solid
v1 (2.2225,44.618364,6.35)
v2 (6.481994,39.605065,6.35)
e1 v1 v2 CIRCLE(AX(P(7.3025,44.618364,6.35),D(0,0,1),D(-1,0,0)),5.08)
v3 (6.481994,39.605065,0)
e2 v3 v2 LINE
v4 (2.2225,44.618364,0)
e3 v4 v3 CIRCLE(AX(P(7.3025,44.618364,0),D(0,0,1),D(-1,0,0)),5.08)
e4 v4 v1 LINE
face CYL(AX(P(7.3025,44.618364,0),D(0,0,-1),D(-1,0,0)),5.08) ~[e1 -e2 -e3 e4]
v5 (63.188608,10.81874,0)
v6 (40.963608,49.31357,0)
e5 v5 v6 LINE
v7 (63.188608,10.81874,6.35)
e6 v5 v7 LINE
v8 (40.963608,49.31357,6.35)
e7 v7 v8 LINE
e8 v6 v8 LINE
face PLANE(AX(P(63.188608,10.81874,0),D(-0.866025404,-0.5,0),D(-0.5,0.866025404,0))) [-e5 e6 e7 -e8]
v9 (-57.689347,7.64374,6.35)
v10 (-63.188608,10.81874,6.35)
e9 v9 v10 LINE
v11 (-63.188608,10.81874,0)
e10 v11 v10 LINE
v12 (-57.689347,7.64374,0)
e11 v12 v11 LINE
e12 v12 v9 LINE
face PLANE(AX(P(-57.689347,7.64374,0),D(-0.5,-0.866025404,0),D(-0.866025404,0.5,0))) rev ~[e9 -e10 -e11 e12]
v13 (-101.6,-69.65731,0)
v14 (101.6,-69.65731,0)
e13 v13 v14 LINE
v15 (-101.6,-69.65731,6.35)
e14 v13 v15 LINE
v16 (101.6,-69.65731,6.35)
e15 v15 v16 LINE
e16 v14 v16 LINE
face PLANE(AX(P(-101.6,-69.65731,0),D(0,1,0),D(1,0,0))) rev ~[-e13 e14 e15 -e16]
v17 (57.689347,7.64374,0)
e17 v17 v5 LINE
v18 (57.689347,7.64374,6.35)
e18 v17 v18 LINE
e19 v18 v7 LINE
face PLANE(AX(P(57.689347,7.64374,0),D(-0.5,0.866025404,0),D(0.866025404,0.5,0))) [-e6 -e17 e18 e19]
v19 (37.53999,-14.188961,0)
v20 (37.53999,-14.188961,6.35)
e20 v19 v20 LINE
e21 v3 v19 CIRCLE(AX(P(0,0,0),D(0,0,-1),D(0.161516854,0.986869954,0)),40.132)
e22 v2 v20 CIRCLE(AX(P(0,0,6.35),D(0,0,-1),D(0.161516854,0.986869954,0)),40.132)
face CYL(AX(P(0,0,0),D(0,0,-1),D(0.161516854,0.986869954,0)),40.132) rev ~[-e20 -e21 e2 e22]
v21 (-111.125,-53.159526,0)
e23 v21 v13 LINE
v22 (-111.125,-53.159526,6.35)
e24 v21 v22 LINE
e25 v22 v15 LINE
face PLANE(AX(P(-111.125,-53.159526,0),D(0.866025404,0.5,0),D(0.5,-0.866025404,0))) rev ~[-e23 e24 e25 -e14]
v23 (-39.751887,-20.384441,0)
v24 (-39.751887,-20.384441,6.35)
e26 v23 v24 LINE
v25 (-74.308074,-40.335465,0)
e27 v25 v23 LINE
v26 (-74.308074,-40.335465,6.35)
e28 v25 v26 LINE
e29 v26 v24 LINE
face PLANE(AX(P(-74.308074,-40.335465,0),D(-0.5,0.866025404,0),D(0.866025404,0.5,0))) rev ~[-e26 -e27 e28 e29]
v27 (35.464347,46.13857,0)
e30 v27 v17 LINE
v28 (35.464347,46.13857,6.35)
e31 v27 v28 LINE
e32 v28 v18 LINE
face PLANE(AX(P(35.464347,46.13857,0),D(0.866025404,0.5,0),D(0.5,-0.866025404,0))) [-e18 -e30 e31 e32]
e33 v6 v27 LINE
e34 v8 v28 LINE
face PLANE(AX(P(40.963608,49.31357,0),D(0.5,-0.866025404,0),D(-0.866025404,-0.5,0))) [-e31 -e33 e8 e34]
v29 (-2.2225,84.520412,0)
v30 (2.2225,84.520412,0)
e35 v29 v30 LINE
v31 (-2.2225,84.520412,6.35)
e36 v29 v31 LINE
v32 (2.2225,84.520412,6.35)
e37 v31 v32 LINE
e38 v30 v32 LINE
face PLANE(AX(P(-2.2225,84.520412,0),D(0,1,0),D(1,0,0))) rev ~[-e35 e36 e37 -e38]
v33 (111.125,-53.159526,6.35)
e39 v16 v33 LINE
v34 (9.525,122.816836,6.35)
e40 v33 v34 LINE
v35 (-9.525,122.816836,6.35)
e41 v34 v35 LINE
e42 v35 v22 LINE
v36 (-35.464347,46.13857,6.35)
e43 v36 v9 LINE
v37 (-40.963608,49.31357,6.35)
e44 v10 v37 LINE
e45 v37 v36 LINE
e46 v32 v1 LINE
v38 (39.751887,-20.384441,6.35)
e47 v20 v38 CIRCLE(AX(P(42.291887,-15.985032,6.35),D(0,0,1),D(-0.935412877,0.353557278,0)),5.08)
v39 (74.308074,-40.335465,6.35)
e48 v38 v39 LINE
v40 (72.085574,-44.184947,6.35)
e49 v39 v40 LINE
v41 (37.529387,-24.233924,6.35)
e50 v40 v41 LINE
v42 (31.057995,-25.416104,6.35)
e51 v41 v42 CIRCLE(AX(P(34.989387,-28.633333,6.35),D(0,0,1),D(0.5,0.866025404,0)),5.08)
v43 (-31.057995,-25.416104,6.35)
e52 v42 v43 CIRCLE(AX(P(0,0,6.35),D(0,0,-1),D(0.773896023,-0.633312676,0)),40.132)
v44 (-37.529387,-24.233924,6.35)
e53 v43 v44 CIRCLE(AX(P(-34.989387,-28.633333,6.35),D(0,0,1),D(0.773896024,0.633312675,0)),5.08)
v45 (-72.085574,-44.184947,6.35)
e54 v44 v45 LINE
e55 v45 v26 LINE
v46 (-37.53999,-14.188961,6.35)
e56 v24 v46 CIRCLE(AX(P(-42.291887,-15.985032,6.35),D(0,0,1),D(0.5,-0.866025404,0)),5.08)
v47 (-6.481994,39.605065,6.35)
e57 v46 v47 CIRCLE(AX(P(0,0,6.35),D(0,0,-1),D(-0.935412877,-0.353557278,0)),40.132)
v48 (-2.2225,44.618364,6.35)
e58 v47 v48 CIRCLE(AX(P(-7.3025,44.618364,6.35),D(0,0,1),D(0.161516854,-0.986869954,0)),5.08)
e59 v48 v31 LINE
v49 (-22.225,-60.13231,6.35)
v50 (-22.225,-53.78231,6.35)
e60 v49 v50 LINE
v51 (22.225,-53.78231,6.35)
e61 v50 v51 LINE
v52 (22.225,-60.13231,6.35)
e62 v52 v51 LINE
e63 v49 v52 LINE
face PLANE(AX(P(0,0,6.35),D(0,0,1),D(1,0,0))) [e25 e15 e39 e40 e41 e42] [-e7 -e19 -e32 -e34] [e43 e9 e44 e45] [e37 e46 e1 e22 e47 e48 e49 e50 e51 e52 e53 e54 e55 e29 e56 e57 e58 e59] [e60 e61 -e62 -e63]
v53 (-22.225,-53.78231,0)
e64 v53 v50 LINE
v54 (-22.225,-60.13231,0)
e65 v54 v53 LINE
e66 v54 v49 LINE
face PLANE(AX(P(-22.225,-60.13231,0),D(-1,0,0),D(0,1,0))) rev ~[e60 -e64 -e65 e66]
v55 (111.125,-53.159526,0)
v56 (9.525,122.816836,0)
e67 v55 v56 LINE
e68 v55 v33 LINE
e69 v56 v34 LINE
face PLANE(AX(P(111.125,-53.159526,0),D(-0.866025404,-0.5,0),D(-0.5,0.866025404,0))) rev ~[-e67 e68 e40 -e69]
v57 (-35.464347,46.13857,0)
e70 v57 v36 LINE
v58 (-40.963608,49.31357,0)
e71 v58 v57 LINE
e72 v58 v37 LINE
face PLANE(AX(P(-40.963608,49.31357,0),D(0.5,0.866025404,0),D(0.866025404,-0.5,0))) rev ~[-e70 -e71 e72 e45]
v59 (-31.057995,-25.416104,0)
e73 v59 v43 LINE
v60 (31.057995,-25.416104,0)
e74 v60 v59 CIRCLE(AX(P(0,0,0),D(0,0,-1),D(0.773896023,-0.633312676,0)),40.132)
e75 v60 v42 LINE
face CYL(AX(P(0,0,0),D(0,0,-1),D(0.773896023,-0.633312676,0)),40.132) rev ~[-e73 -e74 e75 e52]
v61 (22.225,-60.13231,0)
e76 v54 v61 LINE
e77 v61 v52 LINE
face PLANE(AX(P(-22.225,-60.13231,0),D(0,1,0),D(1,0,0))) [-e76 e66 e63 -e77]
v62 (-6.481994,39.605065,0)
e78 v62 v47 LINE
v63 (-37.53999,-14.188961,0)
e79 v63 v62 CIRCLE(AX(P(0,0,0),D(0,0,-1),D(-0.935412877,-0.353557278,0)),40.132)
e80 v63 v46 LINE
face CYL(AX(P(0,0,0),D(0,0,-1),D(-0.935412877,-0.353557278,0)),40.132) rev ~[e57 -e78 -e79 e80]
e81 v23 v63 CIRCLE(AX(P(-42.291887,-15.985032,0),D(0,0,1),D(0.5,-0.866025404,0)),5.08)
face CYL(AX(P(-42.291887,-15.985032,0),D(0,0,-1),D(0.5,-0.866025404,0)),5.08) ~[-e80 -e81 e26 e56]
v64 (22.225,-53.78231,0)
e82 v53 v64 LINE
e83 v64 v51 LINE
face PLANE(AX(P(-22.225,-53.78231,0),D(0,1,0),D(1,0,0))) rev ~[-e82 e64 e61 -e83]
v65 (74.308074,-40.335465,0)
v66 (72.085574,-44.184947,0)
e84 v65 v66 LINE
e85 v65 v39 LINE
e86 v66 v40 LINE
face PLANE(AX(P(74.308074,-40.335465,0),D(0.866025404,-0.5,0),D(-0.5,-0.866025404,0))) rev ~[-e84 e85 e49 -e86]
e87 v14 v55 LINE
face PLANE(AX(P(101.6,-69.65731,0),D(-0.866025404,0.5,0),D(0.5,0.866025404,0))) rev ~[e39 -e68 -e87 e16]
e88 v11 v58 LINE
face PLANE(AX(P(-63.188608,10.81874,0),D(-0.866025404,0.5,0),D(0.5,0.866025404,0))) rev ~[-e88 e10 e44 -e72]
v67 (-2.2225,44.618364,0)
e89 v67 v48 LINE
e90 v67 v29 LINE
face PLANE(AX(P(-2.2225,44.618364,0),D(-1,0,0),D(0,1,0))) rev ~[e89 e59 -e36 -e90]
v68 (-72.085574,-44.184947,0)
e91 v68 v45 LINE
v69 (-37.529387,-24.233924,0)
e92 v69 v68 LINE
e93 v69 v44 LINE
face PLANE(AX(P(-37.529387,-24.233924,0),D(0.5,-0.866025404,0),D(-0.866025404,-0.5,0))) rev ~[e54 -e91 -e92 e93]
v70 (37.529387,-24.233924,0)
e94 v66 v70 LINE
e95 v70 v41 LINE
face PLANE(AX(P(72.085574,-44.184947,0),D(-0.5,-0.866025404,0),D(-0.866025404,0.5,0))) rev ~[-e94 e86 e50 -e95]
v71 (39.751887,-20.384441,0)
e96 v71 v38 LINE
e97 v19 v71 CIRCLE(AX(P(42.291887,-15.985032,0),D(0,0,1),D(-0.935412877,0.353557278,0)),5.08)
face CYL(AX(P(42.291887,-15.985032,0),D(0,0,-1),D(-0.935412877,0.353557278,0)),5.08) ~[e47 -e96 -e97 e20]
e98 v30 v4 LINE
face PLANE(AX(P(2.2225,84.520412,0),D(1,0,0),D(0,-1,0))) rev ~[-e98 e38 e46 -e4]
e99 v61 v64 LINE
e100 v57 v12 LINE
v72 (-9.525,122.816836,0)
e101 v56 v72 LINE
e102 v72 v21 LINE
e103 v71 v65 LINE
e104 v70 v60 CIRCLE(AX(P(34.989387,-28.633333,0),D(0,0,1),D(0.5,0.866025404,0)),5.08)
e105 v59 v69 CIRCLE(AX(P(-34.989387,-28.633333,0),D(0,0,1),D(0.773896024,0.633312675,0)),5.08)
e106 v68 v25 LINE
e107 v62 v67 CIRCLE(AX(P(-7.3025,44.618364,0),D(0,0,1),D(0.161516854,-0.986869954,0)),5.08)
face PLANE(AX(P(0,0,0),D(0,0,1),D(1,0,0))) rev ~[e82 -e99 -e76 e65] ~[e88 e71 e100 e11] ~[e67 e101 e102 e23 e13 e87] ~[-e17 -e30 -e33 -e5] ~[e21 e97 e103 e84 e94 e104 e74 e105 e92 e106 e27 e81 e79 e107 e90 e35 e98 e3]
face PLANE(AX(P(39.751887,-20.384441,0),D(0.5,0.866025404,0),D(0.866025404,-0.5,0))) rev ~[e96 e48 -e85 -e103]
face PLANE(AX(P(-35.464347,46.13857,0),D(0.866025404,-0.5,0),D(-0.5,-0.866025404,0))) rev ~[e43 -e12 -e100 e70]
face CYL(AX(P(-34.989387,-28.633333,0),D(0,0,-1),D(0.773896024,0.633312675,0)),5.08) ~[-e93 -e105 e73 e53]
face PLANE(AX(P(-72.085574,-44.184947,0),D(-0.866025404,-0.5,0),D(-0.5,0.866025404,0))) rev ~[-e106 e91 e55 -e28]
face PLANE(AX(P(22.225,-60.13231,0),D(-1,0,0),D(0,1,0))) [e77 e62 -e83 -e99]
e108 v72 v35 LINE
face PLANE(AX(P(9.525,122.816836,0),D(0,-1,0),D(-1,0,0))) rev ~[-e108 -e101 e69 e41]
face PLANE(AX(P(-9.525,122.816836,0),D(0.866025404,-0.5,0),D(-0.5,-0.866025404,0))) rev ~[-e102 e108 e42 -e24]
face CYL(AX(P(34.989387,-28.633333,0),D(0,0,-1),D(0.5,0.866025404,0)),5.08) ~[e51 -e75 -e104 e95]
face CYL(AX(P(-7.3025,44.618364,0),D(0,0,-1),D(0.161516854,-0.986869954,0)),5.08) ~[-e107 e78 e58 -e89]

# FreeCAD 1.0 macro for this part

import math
import FreeCAD as App
import Part
import Sketcher
Q = App.Units.Quantity


def add_polygon(sketch, points):
    """Adds a closed chain of lines whose ends are joined by coincident constraints."""
    first, n = sketch.GeometryCount, len(points)
    for a, b in zip(points, points[1:] + points[:1]):
        sketch.addGeometry(Part.LineSegment(App.Vector(*a, 0), App.Vector(*b, 0)), False)
    for i in range(n):
        sketch.addConstraint(Sketcher.Constraint("Coincident", first + i, 2, first + (i + 1) % n, 1))

doc = App.newDocument("Part")
body = doc.addObject("PartDesign::Body", "Body")

# Sketch on XY plane
sketch1 = doc.addObject("Sketcher::SketchObject", "Sketch")
body.addObject(sketch1)
sketch1.AttachmentSupport = (doc.XY_Plane, [""])
sketch1.MapMode = "FlatFace"
add_polygon(sketch1, [(101.6, -69.65731), (111.125, -53.159526), (9.525, 122.816836), (-9.525, 122.816836), (-111.125, -53.159526), (-101.6, -69.65731)])  # lines 0-5
add_polygon(sketch1, [(22.225, -60.13231), (-22.225, -60.13231), (-22.225, -53.78231), (22.225, -53.78231)])  # lines 6-9
add_polygon(sketch1, [(-57.689347, 7.64374), (-63.188608, 10.81874), (-40.963608, 49.31357), (-35.464347, 46.13857)])  # lines 10-13
sketch1.addGeometry(Part.LineSegment(App.Vector(-2.2225, 44.618364, 0), App.Vector(-2.2225, 84.520412, 0)), False)  # 14
sketch1.addGeometry(Part.LineSegment(App.Vector(-2.2225, 84.520412, 0), App.Vector(2.2225, 84.520412, 0)), False)  # 15
sketch1.addGeometry(Part.LineSegment(App.Vector(2.2225, 84.520412, 0), App.Vector(2.2225, 44.618364, 0)), False)  # 16
sketch1.addGeometry(Part.ArcOfCircle(Part.Circle(App.Vector(7.3025, 44.618364, 0), App.Vector(0, 0, 1), 5.08), math.radians(180), math.radians(260.705049)), False)  # 17
sketch1.addGeometry(Part.ArcOfCircle(Part.Circle(App.Vector(0, 0, 0), App.Vector(0, 0, 1), 40.132), math.radians(-20.705049), math.radians(80.705049)), False)  # 18
sketch1.addGeometry(Part.ArcOfCircle(Part.Circle(App.Vector(42.291887, -15.985032, 0), App.Vector(0, 0, 1), 5.08), math.radians(159.294951), math.radians(240)), False)  # 19
sketch1.addGeometry(Part.LineSegment(App.Vector(39.751887, -20.384441, 0), App.Vector(74.308074, -40.335465, 0)), False)  # 20
sketch1.addGeometry(Part.LineSegment(App.Vector(74.308074, -40.335465, 0), App.Vector(72.085574, -44.184947, 0)), False)  # 21
sketch1.addGeometry(Part.LineSegment(App.Vector(72.085574, -44.184947, 0), App.Vector(37.529387, -24.233924, 0)), False)  # 22
sketch1.addGeometry(Part.ArcOfCircle(Part.Circle(App.Vector(34.989387, -28.633333, 0), App.Vector(0, 0, 1), 5.08), math.radians(60), math.radians(140.705049)), False)  # 23
sketch1.addGeometry(Part.ArcOfCircle(Part.Circle(App.Vector(0, 0, 0), App.Vector(0, 0, 1), 40.132), math.radians(-140.705049), math.radians(-39.294951)), False)  # 24
sketch1.addGeometry(Part.ArcOfCircle(Part.Circle(App.Vector(-34.989387, -28.633333, 0), App.Vector(0, 0, 1), 5.08), math.radians(39.294951), math.radians(120)), False)  # 25
sketch1.addGeometry(Part.LineSegment(App.Vector(-37.529387, -24.233924, 0), App.Vector(-72.085574, -44.184947, 0)), False)  # 26
sketch1.addGeometry(Part.LineSegment(App.Vector(-72.085574, -44.184947, 0), App.Vector(-74.308074, -40.335465, 0)), False)  # 27
sketch1.addGeometry(Part.LineSegment(App.Vector(-74.308074, -40.335465, 0), App.Vector(-39.751887, -20.384441, 0)), False)  # 28
sketch1.addGeometry(Part.ArcOfCircle(Part.Circle(App.Vector(-42.291887, -15.985032, 0), App.Vector(0, 0, 1), 5.08), math.radians(-60), math.radians(20.705049)), False)  # 29
sketch1.addGeometry(Part.ArcOfCircle(Part.Circle(App.Vector(0, 0, 0), App.Vector(0, 0, 1), 40.132), math.radians(99.294951), math.radians(200.705049)), False)  # 30
sketch1.addGeometry(Part.ArcOfCircle(Part.Circle(App.Vector(-7.3025, 44.618364, 0), App.Vector(0, 0, 1), 5.08), math.radians(-80.705049), math.radians(0)), False)  # 31
add_polygon(sketch1, [(35.464347, 46.13857), (40.963608, 49.31357), (63.188608, 10.81874), (57.689347, 7.64374)])  # lines 32-35
sketch1.addConstraint(Sketcher.Constraint("Coincident", 14, 2, 15, 1))
sketch1.addConstraint(Sketcher.Constraint("Coincident", 15, 2, 16, 1))
sketch1.addConstraint(Sketcher.Constraint("Tangent", 16, 2, 17, 1))
sketch1.addConstraint(Sketcher.Constraint("Tangent", 17, 2, 18, 2))
sketch1.addConstraint(Sketcher.Constraint("Tangent", 18, 1, 19, 1))
sketch1.addConstraint(Sketcher.Constraint("Tangent", 19, 2, 20, 1))
sketch1.addConstraint(Sketcher.Constraint("Coincident", 20, 2, 21, 1))
sketch1.addConstraint(Sketcher.Constraint("Coincident", 21, 2, 22, 1))
sketch1.addConstraint(Sketcher.Constraint("Tangent", 22, 2, 23, 1))
sketch1.addConstraint(Sketcher.Constraint("Tangent", 23, 2, 24, 2))
sketch1.addConstraint(Sketcher.Constraint("Tangent", 24, 1, 25, 1))
sketch1.addConstraint(Sketcher.Constraint("Tangent", 25, 2, 26, 1))
sketch1.addConstraint(Sketcher.Constraint("Coincident", 26, 2, 27, 1))
sketch1.addConstraint(Sketcher.Constraint("Coincident", 27, 2, 28, 1))
sketch1.addConstraint(Sketcher.Constraint("Tangent", 28, 2, 29, 1))
sketch1.addConstraint(Sketcher.Constraint("Tangent", 29, 2, 30, 2))
sketch1.addConstraint(Sketcher.Constraint("Tangent", 30, 1, 31, 1))
sketch1.addConstraint(Sketcher.Constraint("Tangent", 31, 2, 14, 1))
sketch1.addConstraint(Sketcher.Constraint("Horizontal", 2))
sketch1.addConstraint(Sketcher.Constraint("Horizontal", 5))
sketch1.addConstraint(Sketcher.Constraint("Horizontal", 6))
sketch1.addConstraint(Sketcher.Constraint("Vertical", 7))
sketch1.addConstraint(Sketcher.Constraint("Horizontal", 8))
sketch1.addConstraint(Sketcher.Constraint("Vertical", 9))
sketch1.addConstraint(Sketcher.Constraint("Vertical", 14))
sketch1.addConstraint(Sketcher.Constraint("Horizontal", 15))
sketch1.addConstraint(Sketcher.Constraint("Vertical", 16))
sketch1.addConstraint(Sketcher.Constraint("Coincident", 18, 3, -1, 1))
sketch1.addConstraint(Sketcher.Constraint("Coincident", 24, 3, -1, 1))
sketch1.addConstraint(Sketcher.Constraint("Coincident", 30, 3, -1, 1))
sketch1.addConstraint(Sketcher.Constraint("Equal", 17, 19))
sketch1.addConstraint(Sketcher.Constraint("Equal", 19, 23))
sketch1.addConstraint(Sketcher.Constraint("Equal", 18, 24))
sketch1.addConstraint(Sketcher.Constraint("Equal", 23, 25))
sketch1.addConstraint(Sketcher.Constraint("Equal", 25, 29))
sketch1.addConstraint(Sketcher.Constraint("Equal", 24, 30))
sketch1.addConstraint(Sketcher.Constraint("Equal", 29, 31))
sketch1.addConstraint(Sketcher.Constraint("Symmetric", 0, 2, 3, 2, -2))
sketch1.addConstraint(Sketcher.Constraint("Symmetric", 22, 2, 25, 2, -2))
sketch1.addConstraint(Sketcher.Constraint("Symmetric", 20, 2, 27, 2, -2))
sketch1.addConstraint(Sketcher.Constraint("Symmetric", 11, 2, 32, 2, -2))
sketch1.addConstraint(Sketcher.Constraint("Symmetric", 10, 2, 33, 2, -2))
sketch1.addConstraint(Sketcher.Constraint("Symmetric", 13, 2, 34, 2, -2))
sketch1.addConstraint(Sketcher.Constraint("Symmetric", 12, 2, 35, 2, -2))
sketch1.addConstraint(Sketcher.Constraint("Parallel", 0, 3))
sketch1.addConstraint(Sketcher.Constraint("Parallel", 1, 4))
sketch1.addConstraint(Sketcher.Constraint("Perpendicular", 3, 10))
sketch1.addConstraint(Sketcher.Constraint("Perpendicular", 10, 11))
sketch1.addConstraint(Sketcher.Constraint("Perpendicular", 11, 12))
sketch1.addConstraint(Sketcher.Constraint("Perpendicular", 12, 13))
sketch1.addConstraint(Sketcher.Constraint("Perpendicular", 13, 20))
sketch1.addConstraint(Sketcher.Constraint("Perpendicular", 20, 21))
sketch1.addConstraint(Sketcher.Constraint("Perpendicular", 21, 22))
sketch1.addConstraint(Sketcher.Constraint("Perpendicular", 4, 26))
sketch1.addConstraint(Sketcher.Constraint("Perpendicular", 26, 27))
sketch1.addConstraint(Sketcher.Constraint("Perpendicular", 27, 28))
sketch1.addConstraint(Sketcher.Constraint("Horizontal", 17, 3, 31, 3))
sketch1.addConstraint(Sketcher.Constraint("Equal", 20, 22))
sketch1.addConstraint(Sketcher.Constraint("Radius", 17, Q("0.2 in")))
sketch1.addConstraint(Sketcher.Constraint("DistanceX", 5, 1, 5, 2, Q("8 in")))
sketch1.addConstraint(Sketcher.Constraint("Radius", 18, Q("1.58 in")))
sketch1.addConstraint(Sketcher.Constraint("Distance", 1, Q("8 in")))
sketch1.addConstraint(Sketcher.Constraint("Angle", 0, Q("60 deg")))
sketch1.addConstraint(Sketcher.Constraint("DistanceX", 2, 2, 2, 1, Q("0.75 in")))
sketch1.addConstraint(Sketcher.Constraint("DistanceX", 6, 2, 6, 1, Q("1.75 in")))
sketch1.addConstraint(Sketcher.Constraint("DistanceY", 7, 1, 7, 2, Q("0.25 in")))
sketch1.addConstraint(Sketcher.Constraint("Distance", 10, Q("0.25 in")))
sketch1.addConstraint(Sketcher.Constraint("Distance", 11, Q("1.75 in")))
sketch1.addConstraint(Sketcher.Constraint("DistanceX", 15, 1, 15, 2, Q("0.175 in")))
sketch1.addConstraint(Sketcher.Constraint("Distance", 21, Q("0.175 in")))
sketch1.addConstraint(Sketcher.Constraint("DistanceX", 6, 2, -1, 1, Q("0.875 in")))
sketch1.addConstraint(Sketcher.Constraint("DistanceY", 18, 1, 33, 2, 25.007701))
sketch1.addConstraint(Sketcher.Constraint("DistanceY", 14, 1, 14, 2, 39.902048))
sketch1.addConstraint(Sketcher.Constraint("DistanceY", 4, 2, -1, 1, 69.65731))
sketch1.addConstraint(Sketcher.Constraint("DistanceY", 6, 2, -1, 1, 60.13231))
sketch1.addConstraint(Sketcher.Constraint("DistanceX", 10, 2, -1, 1, 63.188608))
sketch1.addConstraint(Sketcher.Constraint("DistanceY", 0, 2, 20, 2, 12.824061))
pad1 = doc.addObject("PartDesign::Pad", "Pad")
body.addObject(pad1)
pad1.Profile = sketch1
pad1.Length = Q("0.25 in")

doc.recompute()
